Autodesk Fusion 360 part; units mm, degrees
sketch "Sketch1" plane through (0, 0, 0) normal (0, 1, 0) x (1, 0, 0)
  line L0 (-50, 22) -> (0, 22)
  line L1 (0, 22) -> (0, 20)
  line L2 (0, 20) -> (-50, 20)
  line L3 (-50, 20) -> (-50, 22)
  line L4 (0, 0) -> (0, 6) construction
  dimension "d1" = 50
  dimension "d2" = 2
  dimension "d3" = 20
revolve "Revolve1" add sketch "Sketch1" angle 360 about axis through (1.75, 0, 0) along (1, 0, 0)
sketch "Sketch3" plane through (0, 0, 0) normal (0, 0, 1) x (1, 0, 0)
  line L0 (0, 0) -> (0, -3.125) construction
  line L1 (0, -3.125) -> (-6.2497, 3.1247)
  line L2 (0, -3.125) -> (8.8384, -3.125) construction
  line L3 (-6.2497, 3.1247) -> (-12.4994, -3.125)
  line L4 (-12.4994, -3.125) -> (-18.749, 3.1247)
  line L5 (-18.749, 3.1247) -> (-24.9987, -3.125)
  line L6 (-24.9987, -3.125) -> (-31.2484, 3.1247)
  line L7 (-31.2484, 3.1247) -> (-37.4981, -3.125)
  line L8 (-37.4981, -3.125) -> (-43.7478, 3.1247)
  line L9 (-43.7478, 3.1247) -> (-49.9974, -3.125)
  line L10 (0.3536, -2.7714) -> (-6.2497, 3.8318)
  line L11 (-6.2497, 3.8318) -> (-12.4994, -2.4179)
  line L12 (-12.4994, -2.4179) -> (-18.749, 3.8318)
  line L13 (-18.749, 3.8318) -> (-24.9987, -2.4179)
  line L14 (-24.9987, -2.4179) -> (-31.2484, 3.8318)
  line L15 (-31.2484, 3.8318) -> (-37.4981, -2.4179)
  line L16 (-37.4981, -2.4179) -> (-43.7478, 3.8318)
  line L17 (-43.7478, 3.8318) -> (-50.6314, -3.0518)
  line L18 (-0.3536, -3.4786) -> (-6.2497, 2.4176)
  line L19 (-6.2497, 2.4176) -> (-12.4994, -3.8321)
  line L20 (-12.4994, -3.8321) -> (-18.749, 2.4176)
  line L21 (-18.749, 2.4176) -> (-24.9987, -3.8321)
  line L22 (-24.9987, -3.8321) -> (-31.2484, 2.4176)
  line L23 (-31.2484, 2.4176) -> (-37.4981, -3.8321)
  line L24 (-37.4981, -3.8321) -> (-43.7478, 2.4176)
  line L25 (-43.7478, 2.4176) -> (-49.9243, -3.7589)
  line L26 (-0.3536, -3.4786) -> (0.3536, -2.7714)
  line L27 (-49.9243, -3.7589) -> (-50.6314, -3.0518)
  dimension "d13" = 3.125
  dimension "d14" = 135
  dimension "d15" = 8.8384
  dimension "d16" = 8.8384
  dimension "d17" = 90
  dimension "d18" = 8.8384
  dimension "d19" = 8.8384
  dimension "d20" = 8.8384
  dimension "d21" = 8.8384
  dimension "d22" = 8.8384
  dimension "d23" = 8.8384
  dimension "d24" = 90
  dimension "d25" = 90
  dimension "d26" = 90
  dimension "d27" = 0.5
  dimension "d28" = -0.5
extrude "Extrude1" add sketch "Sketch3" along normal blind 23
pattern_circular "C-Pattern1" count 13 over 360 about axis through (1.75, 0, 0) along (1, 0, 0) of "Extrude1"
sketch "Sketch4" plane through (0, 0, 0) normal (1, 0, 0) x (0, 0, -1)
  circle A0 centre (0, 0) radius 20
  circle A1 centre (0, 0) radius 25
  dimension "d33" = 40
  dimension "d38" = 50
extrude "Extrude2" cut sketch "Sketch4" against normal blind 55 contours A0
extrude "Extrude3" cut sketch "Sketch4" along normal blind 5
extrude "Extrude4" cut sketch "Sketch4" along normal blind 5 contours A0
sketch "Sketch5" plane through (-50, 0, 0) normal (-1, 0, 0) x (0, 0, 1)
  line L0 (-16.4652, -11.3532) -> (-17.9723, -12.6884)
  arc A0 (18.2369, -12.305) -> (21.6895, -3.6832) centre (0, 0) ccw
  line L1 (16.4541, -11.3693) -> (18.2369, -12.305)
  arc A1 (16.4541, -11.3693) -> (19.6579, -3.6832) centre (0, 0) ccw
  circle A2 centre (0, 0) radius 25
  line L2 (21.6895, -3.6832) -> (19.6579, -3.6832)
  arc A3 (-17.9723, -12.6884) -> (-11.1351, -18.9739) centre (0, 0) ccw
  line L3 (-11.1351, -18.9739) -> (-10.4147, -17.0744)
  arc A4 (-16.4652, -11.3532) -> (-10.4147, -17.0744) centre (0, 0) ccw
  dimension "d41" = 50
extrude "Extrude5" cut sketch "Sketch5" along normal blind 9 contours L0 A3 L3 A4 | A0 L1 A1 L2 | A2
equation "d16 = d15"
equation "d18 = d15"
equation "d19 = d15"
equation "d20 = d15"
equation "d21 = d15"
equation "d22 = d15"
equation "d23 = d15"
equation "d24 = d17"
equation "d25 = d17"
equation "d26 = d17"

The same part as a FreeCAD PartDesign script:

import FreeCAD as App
import Part
import Sketcher
from FreeCAD import Vector


def add_polygon(sketch, points):
    """Adds a closed chain of lines whose ends are joined by coincident constraints."""
    first, n = sketch.GeometryCount, len(points)
    for a, b in zip(points, points[1:] + points[:1]):
        sketch.addGeometry(Part.LineSegment(App.Vector(*a, 0), App.Vector(*b, 0)), False)
    for i in range(n):
        sketch.addConstraint(Sketcher.Constraint("Coincident", first + i, 2, first + (i + 1) % n, 1))

doc = App.newDocument("Part")
body = doc.addObject("PartDesign::Body", "Body")
body.AllowCompound = True

# Sketch on XZ plane
sketch1 = doc.addObject("Sketcher::SketchObject", "Sketch")
body.addObject(sketch1)
sketch1.AttachmentSupport = (doc.XZ_Plane, [""])
sketch1.MapMode = "FlatFace"
add_polygon(sketch1, [(0, -22), (-50, -22), (-50, -20), (0, -20)])  # lines 0-3
sketch1.addConstraint([
    Sketcher.Constraint("Horizontal", 0),
    Sketcher.Constraint("Vertical", 1),
    Sketcher.Constraint("Horizontal", 2),
    Sketcher.Constraint("Vertical", 3),
    Sketcher.Constraint("PointOnObject", 2, 2, -2),
    Sketcher.Constraint("DistanceX", 0, 2, 0, 1, 50.0),
    Sketcher.Constraint("DistanceY", 1, 1, 1, 2, 2.0),
    Sketcher.Constraint("DistanceY", 1, 2, -1, 1, 20.0),
])
revolution = doc.addObject("PartDesign::Revolution", "Revolution")
body.addObject(revolution)
revolution.Profile = sketch1
revolution.ReferenceAxis = (sketch1, ["H_Axis"])
revolution.Angle = 360

# Sketch on XY plane
sketch2 = doc.addObject("Sketcher::SketchObject", "Sketch001")
body.addObject(sketch2)
sketch2.AttachmentSupport = (doc.XY_Plane, [""])
sketch2.MapMode = "FlatFace"
add_polygon(sketch2, [(-0.4, -3.5), (0.4, -2.8), (-6.2, 3.8), (-12.5, -2.4), (-18.7, 3.8), (-25, -2.4), (-31.2, 3.8), (-37.5, -2.4), (-43.7, 3.8), (-50.6, -3.1), (-49.9, -3.8), (-43.7, 2.4), (-37.5, -3.8), (-31.2, 2.4), (-25, -3.8), (-18.7, 2.4), (-12.5, -3.8), (-6.2, 2.4)])  # lines 0-17
sketch2.addConstraint([
    Sketcher.Constraint("Perpendicular", 0, 1),
    Sketcher.Constraint("Perpendicular", 1, 2),
    Sketcher.Constraint("Perpendicular", 2, 3),
    Sketcher.Constraint("Perpendicular", 3, 4),
    Sketcher.Constraint("Perpendicular", 4, 5),
    Sketcher.Constraint("Perpendicular", 5, 6),
    Sketcher.Constraint("Perpendicular", 6, 7),
    Sketcher.Constraint("Perpendicular", 7, 8),
    Sketcher.Constraint("Perpendicular", 8, 9),
    Sketcher.Constraint("Perpendicular", 9, 10),
    Sketcher.Constraint("Perpendicular", 10, 11),
    Sketcher.Constraint("Perpendicular", 11, 12),
    Sketcher.Constraint("Perpendicular", 12, 13),
    Sketcher.Constraint("Perpendicular", 13, 14),
    Sketcher.Constraint("Perpendicular", 14, 15),
    Sketcher.Constraint("Perpendicular", 15, 16),
    Sketcher.Constraint("Perpendicular", 16, 17),
    Sketcher.Constraint("Horizontal", 1, 2, 3, 2),
    Sketcher.Constraint("Horizontal", 2, 2, 4, 2),
    Sketcher.Constraint("Horizontal", 3, 2, 5, 2),
    Sketcher.Constraint("Horizontal", 4, 2, 6, 2),
    Sketcher.Constraint("Horizontal", 5, 2, 7, 2),
    Sketcher.Constraint("Horizontal", 10, 2, 12, 2),
    Sketcher.Constraint("Horizontal", 11, 2, 13, 2),
    Sketcher.Constraint("Horizontal", 12, 2, 14, 2),
    Sketcher.Constraint("Horizontal", 13, 2, 15, 2),
    Sketcher.Constraint("Horizontal", 14, 2, 16, 2),
    Sketcher.Constraint("Vertical", 7, 2, 10, 2),
    Sketcher.Constraint("Vertical", 6, 2, 11, 2),
    Sketcher.Constraint("Equal", 2, 3),
    Sketcher.Constraint("Distance", 9, 1.0),
    Sketcher.Constraint("Distance", 2, 8.8384),
    Sketcher.Constraint("Distance", 8, 9.735),
    Sketcher.Constraint("DistanceY", 2, 2, -1, 1, 2.418),
    Sketcher.Constraint("DistanceX", 3, 2, -1, 1, 18.749),
    Sketcher.Constraint("DistanceX", 2, 2, 0, 2, 12.853),
])
pad1 = doc.addObject("PartDesign::Pad", "Pad")
body.addObject(pad1)
pad1.Profile = sketch2
pad1.Length = 23
doc.recompute()

polarpattern = doc.addObject("PartDesign::PolarPattern", "PolarPattern")
body.addObject(polarpattern)
polarpattern.Originals = [pad1]
polarpattern.Axis = (doc.X_Axis, [""])
polarpattern.Angle = 360
polarpattern.Occurrences = 13
body.Tip = polarpattern

# Sketch on YZ plane
sketch3 = doc.addObject("Sketcher::SketchObject", "Sketch002")
body.addObject(sketch3)
sketch3.AttachmentSupport = (doc.YZ_Plane, [""])
sketch3.MapMode = "FlatFace"
sketch3.addGeometry(Part.Circle(Vector(0, 0, 0), Vector(0, 0, 1), 20), False)
sketch3.addConstraint([
    Sketcher.Constraint("Coincident", 0, 3, -1, 1),
    Sketcher.Constraint("Diameter", 0, 40.0),
])
pocket1 = doc.addObject("PartDesign::Pocket", "Pocket")
body.addObject(pocket1)
pocket1.Profile = sketch3
pocket1.Length = 55

# Sketch on YZ plane
sketch4 = doc.addObject("Sketcher::SketchObject", "Sketch003")
body.addObject(sketch4)
sketch4.AttachmentSupport = (doc.YZ_Plane, [""])
sketch4.MapMode = "FlatFace"
sketch4.addGeometry([
    Part.Circle(Vector(0, 0, 0), Vector(0, 0, 1), 25),
    Part.Circle(Vector(0, 0, 0), Vector(0, 0, 1), 20),
], False)
sketch4.addConstraint([
    Sketcher.Constraint("Coincident", 0, 3, -1, 1),
    Sketcher.Constraint("Coincident", 1, 3, -1, 1),
    Sketcher.Constraint("Diameter", 0, 50.0),
    Sketcher.Constraint("Diameter", 1, 40.0),
])
pocket2 = doc.addObject("PartDesign::Pocket", "Pocket001")
body.addObject(pocket2)
pocket2.Profile = sketch4
pocket2.Length = 5
pocket2.Reversed = True

# Sketch on YZ plane
sketch5 = doc.addObject("Sketcher::SketchObject", "Sketch004")
body.addObject(sketch5)
sketch5.AttachmentSupport = (doc.YZ_Plane, [""])
sketch5.MapMode = "FlatFace"
sketch5.addGeometry(Part.Circle(Vector(0, 0, 0), Vector(0, 0, 1), 20), False)
sketch5.addConstraint([
    Sketcher.Constraint("Coincident", 0, 3, -1, 1),
    Sketcher.Constraint("Diameter", 0, 40.0),
])
pocket3 = doc.addObject("PartDesign::Pocket", "Pocket002")
body.addObject(pocket3)
pocket3.Profile = sketch5
pocket3.Length = 5
pocket3.Reversed = True

# Sketch on YZ plane
sketch6 = doc.addObject("Sketcher::SketchObject", "Sketch005")
body.addObject(sketch6)
sketch6.AttachmentSupport = (doc.YZ_Plane, [""])
sketch6.MapMode = "FlatFace"
sketch6.AttachmentOffset = App.Placement(Vector(0, 0, -50), App.Rotation())
sketch6.addGeometry(Part.Circle(Vector(0, 0, 0), Vector(0, 0, 1), 25), False)
sketch6.addConstraint([
    Sketcher.Constraint("Coincident", 0, 3, -1, 1),
    Sketcher.Constraint("Diameter", 0, 50.0),
])
pocket4 = doc.addObject("PartDesign::Pocket", "Pocket003")
body.addObject(pocket4)
pocket4.Profile = sketch6
pocket4.Length = 9

doc.recompute()
